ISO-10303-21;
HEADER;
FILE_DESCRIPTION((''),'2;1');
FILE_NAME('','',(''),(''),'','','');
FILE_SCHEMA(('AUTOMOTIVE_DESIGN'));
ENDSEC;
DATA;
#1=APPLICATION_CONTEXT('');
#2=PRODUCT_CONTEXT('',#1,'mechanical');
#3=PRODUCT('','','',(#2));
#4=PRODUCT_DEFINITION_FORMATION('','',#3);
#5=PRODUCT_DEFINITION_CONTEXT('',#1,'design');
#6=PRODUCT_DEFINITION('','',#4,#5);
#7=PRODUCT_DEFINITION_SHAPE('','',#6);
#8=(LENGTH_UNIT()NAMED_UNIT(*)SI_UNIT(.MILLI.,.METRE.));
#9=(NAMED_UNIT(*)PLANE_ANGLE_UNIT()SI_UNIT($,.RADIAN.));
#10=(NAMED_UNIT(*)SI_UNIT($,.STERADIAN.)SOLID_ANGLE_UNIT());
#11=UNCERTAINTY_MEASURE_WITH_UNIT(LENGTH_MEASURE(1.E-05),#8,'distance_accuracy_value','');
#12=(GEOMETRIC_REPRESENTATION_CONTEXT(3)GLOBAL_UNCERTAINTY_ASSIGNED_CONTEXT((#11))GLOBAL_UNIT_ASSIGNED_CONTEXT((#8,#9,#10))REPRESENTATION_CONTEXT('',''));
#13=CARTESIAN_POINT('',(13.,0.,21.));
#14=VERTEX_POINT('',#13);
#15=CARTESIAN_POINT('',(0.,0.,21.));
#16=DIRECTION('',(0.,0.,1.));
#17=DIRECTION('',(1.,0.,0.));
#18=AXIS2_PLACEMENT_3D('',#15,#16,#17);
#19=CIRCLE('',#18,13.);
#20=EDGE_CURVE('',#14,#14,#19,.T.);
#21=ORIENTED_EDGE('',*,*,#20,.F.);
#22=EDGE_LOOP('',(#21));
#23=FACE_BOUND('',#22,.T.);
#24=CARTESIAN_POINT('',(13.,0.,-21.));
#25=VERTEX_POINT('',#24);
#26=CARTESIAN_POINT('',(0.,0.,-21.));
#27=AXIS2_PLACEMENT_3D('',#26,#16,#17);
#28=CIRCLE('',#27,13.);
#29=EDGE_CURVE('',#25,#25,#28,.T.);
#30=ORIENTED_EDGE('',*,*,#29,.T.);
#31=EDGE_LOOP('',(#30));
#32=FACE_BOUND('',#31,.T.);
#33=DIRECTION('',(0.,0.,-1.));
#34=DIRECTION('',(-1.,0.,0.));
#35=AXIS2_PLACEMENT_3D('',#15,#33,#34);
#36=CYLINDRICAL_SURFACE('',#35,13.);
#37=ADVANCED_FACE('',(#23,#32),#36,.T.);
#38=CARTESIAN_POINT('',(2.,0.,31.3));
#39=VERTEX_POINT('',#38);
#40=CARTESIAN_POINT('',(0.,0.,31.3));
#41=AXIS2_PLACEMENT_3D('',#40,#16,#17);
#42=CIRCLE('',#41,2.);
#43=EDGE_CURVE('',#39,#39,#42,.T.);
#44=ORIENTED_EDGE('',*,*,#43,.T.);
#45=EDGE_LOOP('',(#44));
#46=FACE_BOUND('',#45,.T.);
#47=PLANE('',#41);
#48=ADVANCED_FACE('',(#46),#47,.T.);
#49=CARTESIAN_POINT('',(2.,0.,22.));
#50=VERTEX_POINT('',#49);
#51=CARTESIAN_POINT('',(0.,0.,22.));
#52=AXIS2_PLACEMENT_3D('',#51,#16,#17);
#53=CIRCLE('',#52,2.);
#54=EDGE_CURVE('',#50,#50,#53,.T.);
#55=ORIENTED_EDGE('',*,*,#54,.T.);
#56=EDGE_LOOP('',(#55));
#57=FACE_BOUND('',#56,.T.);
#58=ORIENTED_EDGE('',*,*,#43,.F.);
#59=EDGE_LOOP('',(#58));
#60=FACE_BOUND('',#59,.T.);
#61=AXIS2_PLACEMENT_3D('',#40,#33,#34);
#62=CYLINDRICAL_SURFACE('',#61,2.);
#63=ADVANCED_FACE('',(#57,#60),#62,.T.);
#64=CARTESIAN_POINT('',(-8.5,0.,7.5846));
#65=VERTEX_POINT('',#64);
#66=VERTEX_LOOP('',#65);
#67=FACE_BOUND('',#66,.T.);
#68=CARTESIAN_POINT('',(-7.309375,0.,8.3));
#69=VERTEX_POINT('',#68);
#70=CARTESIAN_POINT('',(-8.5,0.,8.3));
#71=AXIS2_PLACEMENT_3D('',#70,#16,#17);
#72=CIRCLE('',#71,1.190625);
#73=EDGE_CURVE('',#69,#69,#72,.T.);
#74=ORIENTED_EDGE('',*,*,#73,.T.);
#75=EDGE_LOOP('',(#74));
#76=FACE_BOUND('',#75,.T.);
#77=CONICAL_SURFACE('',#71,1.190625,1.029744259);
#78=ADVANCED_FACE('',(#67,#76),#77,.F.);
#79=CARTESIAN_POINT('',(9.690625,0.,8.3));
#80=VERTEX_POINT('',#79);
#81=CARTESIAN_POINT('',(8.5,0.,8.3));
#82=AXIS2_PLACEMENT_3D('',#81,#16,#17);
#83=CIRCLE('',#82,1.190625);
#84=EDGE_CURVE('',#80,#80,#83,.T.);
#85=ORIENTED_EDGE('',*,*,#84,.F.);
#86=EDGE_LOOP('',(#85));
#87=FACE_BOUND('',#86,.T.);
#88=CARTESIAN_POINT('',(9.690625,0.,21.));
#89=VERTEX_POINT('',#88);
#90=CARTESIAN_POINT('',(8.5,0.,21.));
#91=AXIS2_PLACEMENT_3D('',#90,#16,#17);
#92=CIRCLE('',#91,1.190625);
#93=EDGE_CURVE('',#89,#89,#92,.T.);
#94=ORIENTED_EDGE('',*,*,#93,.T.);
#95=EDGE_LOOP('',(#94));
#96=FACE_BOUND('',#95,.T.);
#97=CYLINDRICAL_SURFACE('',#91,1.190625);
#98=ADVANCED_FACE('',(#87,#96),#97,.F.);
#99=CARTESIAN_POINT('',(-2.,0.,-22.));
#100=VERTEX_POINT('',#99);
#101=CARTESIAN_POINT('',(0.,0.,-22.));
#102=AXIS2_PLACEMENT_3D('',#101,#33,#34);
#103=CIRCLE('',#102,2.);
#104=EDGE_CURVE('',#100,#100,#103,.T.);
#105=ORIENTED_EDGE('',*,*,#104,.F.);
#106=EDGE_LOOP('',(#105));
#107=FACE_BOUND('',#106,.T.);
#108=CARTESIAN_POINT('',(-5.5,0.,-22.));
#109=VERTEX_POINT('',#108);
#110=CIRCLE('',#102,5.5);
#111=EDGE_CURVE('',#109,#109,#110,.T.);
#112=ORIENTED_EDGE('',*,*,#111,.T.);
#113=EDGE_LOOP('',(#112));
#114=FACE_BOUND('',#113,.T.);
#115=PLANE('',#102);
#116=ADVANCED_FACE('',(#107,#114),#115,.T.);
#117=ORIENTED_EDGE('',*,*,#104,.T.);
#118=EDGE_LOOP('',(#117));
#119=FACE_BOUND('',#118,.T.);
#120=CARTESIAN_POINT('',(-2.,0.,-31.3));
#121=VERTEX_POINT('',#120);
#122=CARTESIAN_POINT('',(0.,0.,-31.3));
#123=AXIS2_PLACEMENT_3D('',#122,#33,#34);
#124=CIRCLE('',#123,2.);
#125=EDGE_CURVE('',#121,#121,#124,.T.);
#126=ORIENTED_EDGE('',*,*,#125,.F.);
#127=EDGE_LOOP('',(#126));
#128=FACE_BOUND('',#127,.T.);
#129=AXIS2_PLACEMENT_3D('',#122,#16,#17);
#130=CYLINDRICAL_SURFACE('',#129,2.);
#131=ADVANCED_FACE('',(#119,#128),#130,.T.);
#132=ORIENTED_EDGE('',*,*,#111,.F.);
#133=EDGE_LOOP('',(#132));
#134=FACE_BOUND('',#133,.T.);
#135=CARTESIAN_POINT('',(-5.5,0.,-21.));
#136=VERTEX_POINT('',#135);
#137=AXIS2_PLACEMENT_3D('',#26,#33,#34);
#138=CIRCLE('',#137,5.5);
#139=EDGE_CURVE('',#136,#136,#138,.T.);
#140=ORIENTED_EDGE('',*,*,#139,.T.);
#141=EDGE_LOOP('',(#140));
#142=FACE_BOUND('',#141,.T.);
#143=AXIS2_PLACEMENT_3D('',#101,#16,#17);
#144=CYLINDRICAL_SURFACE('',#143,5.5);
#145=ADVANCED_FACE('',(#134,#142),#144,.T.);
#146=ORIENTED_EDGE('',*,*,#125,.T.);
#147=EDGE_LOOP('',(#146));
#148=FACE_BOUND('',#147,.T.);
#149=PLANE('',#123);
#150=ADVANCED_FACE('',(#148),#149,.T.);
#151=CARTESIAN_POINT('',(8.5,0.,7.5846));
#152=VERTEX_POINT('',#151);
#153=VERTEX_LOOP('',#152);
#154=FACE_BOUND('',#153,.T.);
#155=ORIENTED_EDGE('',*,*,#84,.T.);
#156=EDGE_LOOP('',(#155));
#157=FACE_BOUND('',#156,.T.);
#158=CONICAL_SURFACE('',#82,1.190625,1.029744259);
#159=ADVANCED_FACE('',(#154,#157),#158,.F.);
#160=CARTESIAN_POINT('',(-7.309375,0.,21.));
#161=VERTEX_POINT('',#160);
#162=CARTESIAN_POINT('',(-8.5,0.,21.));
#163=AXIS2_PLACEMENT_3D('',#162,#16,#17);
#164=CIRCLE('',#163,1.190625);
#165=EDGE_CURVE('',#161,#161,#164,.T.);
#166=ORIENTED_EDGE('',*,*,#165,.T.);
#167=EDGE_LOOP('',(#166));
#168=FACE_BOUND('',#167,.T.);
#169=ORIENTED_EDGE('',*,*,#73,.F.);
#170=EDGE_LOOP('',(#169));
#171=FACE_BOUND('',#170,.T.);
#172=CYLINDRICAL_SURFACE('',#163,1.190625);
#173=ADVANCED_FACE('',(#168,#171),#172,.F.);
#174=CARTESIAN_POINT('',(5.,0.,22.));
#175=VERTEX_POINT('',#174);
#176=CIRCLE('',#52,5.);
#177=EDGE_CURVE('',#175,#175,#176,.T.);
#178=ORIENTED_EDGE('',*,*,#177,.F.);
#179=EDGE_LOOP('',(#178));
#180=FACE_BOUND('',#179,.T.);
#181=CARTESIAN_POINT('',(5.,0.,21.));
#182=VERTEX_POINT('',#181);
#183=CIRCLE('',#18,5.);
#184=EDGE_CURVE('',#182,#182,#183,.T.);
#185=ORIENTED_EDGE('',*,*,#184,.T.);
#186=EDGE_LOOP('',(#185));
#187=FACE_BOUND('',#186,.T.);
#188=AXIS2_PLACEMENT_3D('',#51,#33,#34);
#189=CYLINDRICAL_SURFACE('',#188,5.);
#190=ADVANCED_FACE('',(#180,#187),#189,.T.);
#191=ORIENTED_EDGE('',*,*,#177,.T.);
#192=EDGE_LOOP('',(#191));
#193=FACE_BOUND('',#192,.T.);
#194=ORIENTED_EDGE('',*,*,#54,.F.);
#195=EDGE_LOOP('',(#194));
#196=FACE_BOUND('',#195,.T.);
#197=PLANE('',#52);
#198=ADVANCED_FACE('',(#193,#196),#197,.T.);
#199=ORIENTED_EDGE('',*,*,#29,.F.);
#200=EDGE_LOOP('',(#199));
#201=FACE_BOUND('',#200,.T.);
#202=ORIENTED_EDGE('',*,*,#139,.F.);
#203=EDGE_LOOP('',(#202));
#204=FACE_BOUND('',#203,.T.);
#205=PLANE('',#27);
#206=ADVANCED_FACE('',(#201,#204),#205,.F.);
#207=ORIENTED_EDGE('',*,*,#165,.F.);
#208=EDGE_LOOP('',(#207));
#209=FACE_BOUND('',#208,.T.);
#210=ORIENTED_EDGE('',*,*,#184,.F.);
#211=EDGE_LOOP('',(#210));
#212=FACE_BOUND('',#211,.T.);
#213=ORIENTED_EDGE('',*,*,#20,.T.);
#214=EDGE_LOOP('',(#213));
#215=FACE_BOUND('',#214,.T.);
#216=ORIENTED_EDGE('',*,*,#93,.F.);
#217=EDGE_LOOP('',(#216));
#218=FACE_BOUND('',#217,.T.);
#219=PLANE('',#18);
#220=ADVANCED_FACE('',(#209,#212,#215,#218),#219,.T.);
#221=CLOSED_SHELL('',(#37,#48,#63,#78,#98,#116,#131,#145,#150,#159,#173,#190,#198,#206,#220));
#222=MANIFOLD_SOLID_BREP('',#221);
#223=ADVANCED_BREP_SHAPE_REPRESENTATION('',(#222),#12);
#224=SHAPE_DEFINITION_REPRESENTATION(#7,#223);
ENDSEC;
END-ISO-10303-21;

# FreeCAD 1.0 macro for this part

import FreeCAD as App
import Part
import Sketcher

V = App.Vector

doc = App.newDocument("Part")
body = doc.addObject("PartDesign::Body", "Body")

# Sketch on XY plane
sketch1 = body.newObject("Sketcher::SketchObject", "Sketch")
sketch1.AttachmentSupport = (doc.getObject("XY_Plane"), [""])
sketch1.MapMode = "FlatFace"
sketch1.addGeometry(Part.Circle(V(0, 0, 0), V(0, 0, 1), 13), False)
sketch1.addConstraint([
    Sketcher.Constraint("Coincident", 0, 3, -1, 1),
    Sketcher.Constraint("Diameter", 0, 26.0),
])
pad1 = body.newObject("PartDesign::Pad", "Pad")
pad1.Profile = sketch1
pad1.Length = 42
pad1.Midplane = True

# Sketch on XY plane
sketch2 = body.newObject("Sketcher::SketchObject", "Sketch001")
sketch2.AttachmentSupport = (doc.getObject("XY_Plane"), [""])
sketch2.MapMode = "FlatFace"
sketch2.AttachmentOffset = App.Placement(V(0, 0, 21), App.Rotation())
sketch2.addGeometry(Part.Circle(V(0, 0, 0), V(0, 0, 1), 5), False)
sketch2.addConstraint([
    Sketcher.Constraint("Coincident", 0, 3, -1, 1),
    Sketcher.Constraint("Diameter", 0, 10.0),
])
pad2 = body.newObject("PartDesign::Pad", "Pad001")
pad2.Profile = sketch2
pad2.Length = 1

# Sketch on XY plane
sketch3 = body.newObject("Sketcher::SketchObject", "Sketch002")
sketch3.AttachmentSupport = (doc.getObject("XY_Plane"), [""])
sketch3.MapMode = "FlatFace"
sketch3.AttachmentOffset = App.Placement(V(0, 0, -21), App.Rotation())
sketch3.addGeometry(Part.Circle(V(0, 0, 0), V(0, 0, 1), 6), False)
sketch3.addConstraint([
    Sketcher.Constraint("Coincident", 0, 3, -1, 1),
    Sketcher.Constraint("Diameter", 0, 11.0),
])
pad3 = body.newObject("PartDesign::Pad", "Pad002")
pad3.Profile = sketch3
pad3.Length = 1
pad3.Reversed = True

# Sketch on XY plane
sketch4 = body.newObject("Sketcher::SketchObject", "Sketch003")
sketch4.AttachmentSupport = (doc.getObject("XY_Plane"), [""])
sketch4.MapMode = "FlatFace"
sketch4.AttachmentOffset = App.Placement(V(0, 0, 22), App.Rotation())
sketch4.addGeometry(Part.Circle(V(0, 0, 0), V(0, 0, 1), 2), False)
sketch4.addConstraint([
    Sketcher.Constraint("Coincident", 0, 3, -1, 1),
    Sketcher.Constraint("Diameter", 0, 4.0),
])
pad4 = body.newObject("PartDesign::Pad", "Pad003")
pad4.Profile = sketch4
pad4.Length = 9.3

# Sketch on XY plane
sketch5 = body.newObject("Sketcher::SketchObject", "Sketch004")
sketch5.AttachmentSupport = (doc.getObject("XY_Plane"), [""])
sketch5.MapMode = "FlatFace"
sketch5.AttachmentOffset = App.Placement(V(0, 0, -22), App.Rotation())
sketch5.addGeometry(Part.Circle(V(0, 0, 0), V(0, 0, 1), 2), False)
sketch5.addConstraint([
    Sketcher.Constraint("Coincident", 0, 3, -1, 1),
    Sketcher.Constraint("Diameter", 0, 4.0),
])
pad5 = body.newObject("PartDesign::Pad", "Pad004")
pad5.Profile = sketch5
pad5.Length = 9.3
pad5.Reversed = True

# Sketch on XY plane
sketch6 = body.newObject("Sketcher::SketchObject", "Sketch005")
sketch6.AttachmentSupport = (doc.getObject("XY_Plane"), [""])
sketch6.MapMode = "FlatFace"
sketch6.AttachmentOffset = App.Placement(V(0, 0, 21), App.Rotation())
sketch6.addGeometry([
    Part.Circle(V(8.5, 0, 0), V(0, 0, 1), 1.2),
    Part.Circle(V(-8.5, 0, 0), V(0, 0, 1), 1.2),
], False)
sketch6.addConstraint([
    Sketcher.Constraint("Equal", 0, 1),
    Sketcher.Constraint("Symmetric", 0, 3, 1, 3, -1, 1),
    Sketcher.Constraint("PointOnObject", 0, 3, -1),
    Sketcher.Constraint("DistanceX", 1, 3, 0, 3, 17.0),
    Sketcher.Constraint("Diameter", 0, 2.38125),
])
doc.recompute()
hole = body.newObject("PartDesign::Hole", "Hole")
hole.Profile = sketch6
hole.ThreadType = "None"
hole.Diameter = 2.38125
hole.DepthType = "Dimension"
hole.Depth = 12.7
hole.DrillPoint = "Angled"
hole.DrillPointAngle = 118

doc.recompute()
